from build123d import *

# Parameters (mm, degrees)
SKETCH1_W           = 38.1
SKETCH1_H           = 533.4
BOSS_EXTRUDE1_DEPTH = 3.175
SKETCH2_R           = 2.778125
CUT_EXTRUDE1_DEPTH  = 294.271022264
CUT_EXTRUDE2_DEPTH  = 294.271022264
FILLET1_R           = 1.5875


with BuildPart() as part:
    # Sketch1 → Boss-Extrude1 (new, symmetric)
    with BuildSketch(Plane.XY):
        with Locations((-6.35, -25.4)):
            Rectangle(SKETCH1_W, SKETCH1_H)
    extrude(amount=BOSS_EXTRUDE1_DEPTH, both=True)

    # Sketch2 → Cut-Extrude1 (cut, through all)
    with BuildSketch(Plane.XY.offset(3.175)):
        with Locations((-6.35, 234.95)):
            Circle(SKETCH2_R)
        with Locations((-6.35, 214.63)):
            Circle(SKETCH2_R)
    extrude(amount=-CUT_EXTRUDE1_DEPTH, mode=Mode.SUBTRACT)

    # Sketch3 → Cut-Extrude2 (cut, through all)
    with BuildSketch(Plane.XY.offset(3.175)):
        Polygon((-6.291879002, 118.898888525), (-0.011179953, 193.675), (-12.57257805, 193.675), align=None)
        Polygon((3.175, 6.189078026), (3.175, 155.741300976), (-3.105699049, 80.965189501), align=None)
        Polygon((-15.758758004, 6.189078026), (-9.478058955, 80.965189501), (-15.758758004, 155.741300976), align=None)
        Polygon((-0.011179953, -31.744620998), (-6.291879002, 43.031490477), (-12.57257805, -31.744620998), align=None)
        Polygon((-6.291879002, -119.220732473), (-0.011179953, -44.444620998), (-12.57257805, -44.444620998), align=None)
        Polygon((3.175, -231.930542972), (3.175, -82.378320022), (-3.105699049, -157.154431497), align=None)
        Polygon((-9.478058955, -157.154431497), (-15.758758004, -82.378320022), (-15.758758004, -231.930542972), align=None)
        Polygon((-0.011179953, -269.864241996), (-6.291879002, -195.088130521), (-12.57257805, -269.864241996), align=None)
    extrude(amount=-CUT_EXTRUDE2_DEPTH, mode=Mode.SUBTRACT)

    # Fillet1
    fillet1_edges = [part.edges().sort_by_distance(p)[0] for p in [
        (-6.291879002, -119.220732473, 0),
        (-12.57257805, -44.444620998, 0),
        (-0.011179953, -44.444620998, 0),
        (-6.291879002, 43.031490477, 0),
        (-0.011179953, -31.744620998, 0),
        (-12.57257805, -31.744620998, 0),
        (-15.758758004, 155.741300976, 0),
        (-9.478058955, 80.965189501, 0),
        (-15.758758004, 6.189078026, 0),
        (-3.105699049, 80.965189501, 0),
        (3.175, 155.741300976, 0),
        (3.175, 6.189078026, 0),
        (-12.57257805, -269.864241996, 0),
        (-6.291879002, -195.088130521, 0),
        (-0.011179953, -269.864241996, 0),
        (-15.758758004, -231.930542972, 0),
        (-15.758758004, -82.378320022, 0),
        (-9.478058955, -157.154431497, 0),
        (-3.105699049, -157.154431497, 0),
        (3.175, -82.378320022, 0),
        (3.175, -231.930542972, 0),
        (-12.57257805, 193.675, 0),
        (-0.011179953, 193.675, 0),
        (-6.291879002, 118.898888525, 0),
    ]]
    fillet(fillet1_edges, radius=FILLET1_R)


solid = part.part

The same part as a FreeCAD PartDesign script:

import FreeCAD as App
import Part
import Sketcher
from FreeCAD import Vector
Q = App.Units.Quantity


def edges_at(feature, points):
    """Names of the edges that pass closest to the given points."""
    edges = feature.Shape.Edges
    near = lambda p: min(range(len(edges)), key=lambda i: edges[i].distToShape(Part.Vertex(*p))[0])
    return sorted({f"Edge{near(p) + 1}" for p in points})

doc = App.newDocument("Part")
body = doc.addObject("PartDesign::Body", "Body")

# Sketch on XY plane
sketch1 = body.newObject("Sketcher::SketchObject", "Sketch")
sketch1.AttachmentSupport = (doc.getObject("XY_Plane"), [""])
sketch1.MapMode = "FlatFace"
sketch1.addGeometry(Part.LineSegment(Vector(-25, 241, 0), Vector(-25, -292, 0)), False)
sketch1.addGeometry(Part.LineSegment(Vector(-25, -292, 0), Vector(13, -292, 0)), False)
sketch1.addGeometry(Part.LineSegment(Vector(13, -292, 0), Vector(13, 241, 0)), False)
sketch1.addGeometry(Part.LineSegment(Vector(13, 241, 0), Vector(-25, 241, 0)), False)
sketch1.addConstraint(Sketcher.Constraint("Coincident", 0, 2, 1, 1))
sketch1.addConstraint(Sketcher.Constraint("Coincident", 1, 2, 2, 1))
sketch1.addConstraint(Sketcher.Constraint("Coincident", 2, 2, 3, 1))
sketch1.addConstraint(Sketcher.Constraint("Coincident", 3, 2, 0, 1))
sketch1.addConstraint(Sketcher.Constraint("Vertical", 0))
sketch1.addConstraint(Sketcher.Constraint("Horizontal", 1))
sketch1.addConstraint(Sketcher.Constraint("Vertical", 2))
sketch1.addConstraint(Sketcher.Constraint("Horizontal", 3))
sketch1.addConstraint(Sketcher.Constraint("DistanceY", 0, 2, 0, 1, Q("21 in")))
sketch1.addConstraint(Sketcher.Constraint("DistanceX", 1, 1, 1, 2, Q("1.5 in")))
sketch1.addConstraint(Sketcher.Constraint("DistanceX", 0, 2, -1, 1, Q("1 in")))
sketch1.addConstraint(Sketcher.Constraint("DistanceY", 0, 2, -1, 1, Q("11.5 in")))
pad1 = body.newObject("PartDesign::Pad", "Pad")
pad1.Profile = sketch1
pad1.Length = Q("0.25 in")
pad1.Midplane = True

# Sketch on XY plane
sketch2 = body.newObject("Sketcher::SketchObject", "Sketch001")
sketch2.AttachmentSupport = (doc.getObject("XY_Plane"), [""])
sketch2.MapMode = "FlatFace"
sketch2.AttachmentOffset = App.Placement(Vector(0, 0, 0.125 * 25.4), App.Rotation())
sketch2.addGeometry(Part.Circle(Vector(-6.3, 234.9, 0), Vector(0, 0, 1), 2.8), False)
sketch2.addGeometry(Part.Circle(Vector(-6.3, 214.6, 0), Vector(0, 0, 1), 2.8), False)
sketch2.addConstraint(Sketcher.Constraint("Equal", 0, 1))
sketch2.addConstraint(Sketcher.Constraint("Vertical", 0, 3, 1, 3))
sketch2.addConstraint(Sketcher.Constraint("Diameter", 0, Q("0.21875 in")))
sketch2.addConstraint(Sketcher.Constraint("DistanceY", 1, 3, 0, 3, Q("0.8 in")))
sketch2.addConstraint(Sketcher.Constraint("DistanceX", 0, 3, -1, 1, Q("0.25 in")))
sketch2.addConstraint(Sketcher.Constraint("DistanceY", -1, 1, 0, 3, Q("9.25 in")))
pocket1 = body.newObject("PartDesign::Pocket", "Pocket")
pocket1.Profile = sketch2
pocket1.Type = "ThroughAll"

# Sketch on XY plane
sketch3 = body.newObject("Sketcher::SketchObject", "Sketch002")
sketch3.AttachmentSupport = (doc.getObject("XY_Plane"), [""])
sketch3.MapMode = "FlatFace"
sketch3.AttachmentOffset = App.Placement(Vector(0, 0, 0.125 * 25.4), App.Rotation())
sketch3.addGeometry(Part.LineSegment(Vector(-6, 119, 0), Vector(0, 194, 0)), False)
sketch3.addGeometry(Part.LineSegment(Vector(0, 194, 0), Vector(-13, 194, 0)), False)
sketch3.addGeometry(Part.LineSegment(Vector(-13, 194, 0), Vector(-6, 119, 0)), False)
sketch3.addGeometry(Part.LineSegment(Vector(3, 6, 0), Vector(3, 156, 0)), False)
sketch3.addGeometry(Part.LineSegment(Vector(3, 156, 0), Vector(-3, 81, 0)), False)
sketch3.addGeometry(Part.LineSegment(Vector(-3, 81, 0), Vector(3, 6, 0)), False)
sketch3.addGeometry(Part.LineSegment(Vector(-16, 6, 0), Vector(-9, 81, 0)), False)
sketch3.addGeometry(Part.LineSegment(Vector(-9, 81, 0), Vector(-16, 156, 0)), False)
sketch3.addGeometry(Part.LineSegment(Vector(-16, 156, 0), Vector(-16, 6, 0)), False)
sketch3.addGeometry(Part.LineSegment(Vector(0, -32, 0), Vector(-6, 43, 0)), False)
sketch3.addGeometry(Part.LineSegment(Vector(-6, 43, 0), Vector(-13, -32, 0)), False)
sketch3.addGeometry(Part.LineSegment(Vector(-13, -32, 0), Vector(0, -32, 0)), False)
sketch3.addGeometry(Part.LineSegment(Vector(-6, -119, 0), Vector(0, -44, 0)), False)
sketch3.addGeometry(Part.LineSegment(Vector(0, -44, 0), Vector(-13, -44, 0)), False)
sketch3.addGeometry(Part.LineSegment(Vector(-13, -44, 0), Vector(-6, -119, 0)), False)
sketch3.addGeometry(Part.LineSegment(Vector(3, -232, 0), Vector(3, -82, 0)), False)
sketch3.addGeometry(Part.LineSegment(Vector(3, -82, 0), Vector(-3, -157, 0)), False)
sketch3.addGeometry(Part.LineSegment(Vector(-3, -157, 0), Vector(3, -232, 0)), False)
sketch3.addGeometry(Part.LineSegment(Vector(-9, -157, 0), Vector(-16, -82, 0)), False)
sketch3.addGeometry(Part.LineSegment(Vector(-16, -82, 0), Vector(-16, -232, 0)), False)
sketch3.addGeometry(Part.LineSegment(Vector(-16, -232, 0), Vector(-9, -157, 0)), False)
sketch3.addGeometry(Part.LineSegment(Vector(0, -270, 0), Vector(-6, -195, 0)), False)
sketch3.addGeometry(Part.LineSegment(Vector(-6, -195, 0), Vector(-13, -270, 0)), False)
sketch3.addGeometry(Part.LineSegment(Vector(-13, -270, 0), Vector(0, -270, 0)), False)
sketch3.addConstraint(Sketcher.Constraint("Coincident", 0, 2, 1, 1))
sketch3.addConstraint(Sketcher.Constraint("Coincident", 1, 2, 2, 1))
sketch3.addConstraint(Sketcher.Constraint("Coincident", 2, 2, 0, 1))
sketch3.addConstraint(Sketcher.Constraint("Coincident", 3, 2, 4, 1))
sketch3.addConstraint(Sketcher.Constraint("Coincident", 4, 2, 5, 1))
sketch3.addConstraint(Sketcher.Constraint("Coincident", 5, 2, 3, 1))
sketch3.addConstraint(Sketcher.Constraint("Coincident", 6, 2, 7, 1))
sketch3.addConstraint(Sketcher.Constraint("Coincident", 7, 2, 8, 1))
sketch3.addConstraint(Sketcher.Constraint("Coincident", 8, 2, 6, 1))
sketch3.addConstraint(Sketcher.Constraint("Coincident", 9, 2, 10, 1))
sketch3.addConstraint(Sketcher.Constraint("Coincident", 10, 2, 11, 1))
sketch3.addConstraint(Sketcher.Constraint("Coincident", 11, 2, 9, 1))
sketch3.addConstraint(Sketcher.Constraint("Coincident", 12, 2, 13, 1))
sketch3.addConstraint(Sketcher.Constraint("Coincident", 13, 2, 14, 1))
sketch3.addConstraint(Sketcher.Constraint("Coincident", 14, 2, 12, 1))
sketch3.addConstraint(Sketcher.Constraint("Coincident", 15, 2, 16, 1))
sketch3.addConstraint(Sketcher.Constraint("Coincident", 16, 2, 17, 1))
sketch3.addConstraint(Sketcher.Constraint("Coincident", 17, 2, 15, 1))
sketch3.addConstraint(Sketcher.Constraint("Coincident", 18, 2, 19, 1))
sketch3.addConstraint(Sketcher.Constraint("Coincident", 19, 2, 20, 1))
sketch3.addConstraint(Sketcher.Constraint("Coincident", 20, 2, 18, 1))
sketch3.addConstraint(Sketcher.Constraint("Coincident", 21, 2, 22, 1))
sketch3.addConstraint(Sketcher.Constraint("Coincident", 22, 2, 23, 1))
sketch3.addConstraint(Sketcher.Constraint("Coincident", 23, 2, 21, 1))
sketch3.addConstraint(Sketcher.Constraint("Horizontal", 1))
sketch3.addConstraint(Sketcher.Constraint("Vertical", 3))
sketch3.addConstraint(Sketcher.Constraint("Vertical", 8))
sketch3.addConstraint(Sketcher.Constraint("Horizontal", 11))
sketch3.addConstraint(Sketcher.Constraint("Horizontal", 13))
sketch3.addConstraint(Sketcher.Constraint("Vertical", 15))
sketch3.addConstraint(Sketcher.Constraint("Vertical", 19))
sketch3.addConstraint(Sketcher.Constraint("Horizontal", 23))
sketch3.addConstraint(Sketcher.Constraint("Parallel", 0, 4))
sketch3.addConstraint(Sketcher.Constraint("Parallel", 2, 5))
sketch3.addConstraint(Sketcher.Constraint("Parallel", 4, 6))
sketch3.addConstraint(Sketcher.Constraint("Parallel", 5, 7))
sketch3.addConstraint(Sketcher.Constraint("Parallel", 7, 9))
sketch3.addConstraint(Sketcher.Constraint("Parallel", 6, 10))
sketch3.addConstraint(Sketcher.Constraint("Parallel", 10, 12))
sketch3.addConstraint(Sketcher.Constraint("Parallel", 9, 14))
sketch3.addConstraint(Sketcher.Constraint("Parallel", 12, 16))
sketch3.addConstraint(Sketcher.Constraint("Parallel", 14, 17))
sketch3.addConstraint(Sketcher.Constraint("Parallel", 17, 18))
sketch3.addConstraint(Sketcher.Constraint("Parallel", 16, 20))
sketch3.addConstraint(Sketcher.Constraint("Parallel", 18, 21))
sketch3.addConstraint(Sketcher.Constraint("Parallel", 20, 22))
sketch3.addConstraint(Sketcher.Constraint("Horizontal", 4, 2, 6, 2))
sketch3.addConstraint(Sketcher.Constraint("Horizontal", 3, 2, 7, 2))
sketch3.addConstraint(Sketcher.Constraint("Horizontal", 5, 2, 8, 2))
sketch3.addConstraint(Sketcher.Constraint("Horizontal", 15, 2, 18, 2))
sketch3.addConstraint(Sketcher.Constraint("Horizontal", 17, 2, 19, 2))
sketch3.addConstraint(Sketcher.Constraint("Vertical", 2, 2, 9, 2))
sketch3.addConstraint(Sketcher.Constraint("Vertical", 1, 2, 10, 2))
sketch3.addConstraint(Sketcher.Constraint("Vertical", 11, 2, 12, 2))
sketch3.addConstraint(Sketcher.Constraint("Vertical", 10, 2, 13, 2))
sketch3.addConstraint(Sketcher.Constraint("Vertical", 5, 2, 15, 2))
sketch3.addConstraint(Sketcher.Constraint("Vertical", 4, 2, 16, 2))
sketch3.addConstraint(Sketcher.Constraint("Vertical", 8, 2, 18, 2))
sketch3.addConstraint(Sketcher.Constraint("Vertical", 14, 2, 21, 2))
sketch3.addConstraint(Sketcher.Constraint("Vertical", 13, 2, 22, 2))
sketch3.addConstraint(Sketcher.Constraint("Equal", 2, 4))
sketch3.addConstraint(Sketcher.Constraint("DistanceY", 12, 2, 11, 2, Q("0.5 in")))
sketch3.addConstraint(Sketcher.Constraint("DistanceY", -1, 1, 0, 2, Q("7.625 in")))
sketch3.addConstraint(Sketcher.Constraint("DistanceX", -1, 1, 3, 2, Q("0.125 in")))
sketch3.addConstraint(Sketcher.Constraint("DistanceX", 1, 2, 1, 1, Q("12.561398 mm")))
sketch3.addConstraint(Sketcher.Constraint("DistanceY", -1, 1, 3, 2, Q("155.741301 mm")))
sketch3.addConstraint(Sketcher.Constraint("DistanceY", 9, 2, 4, 2, Q("37.933699 mm")))
sketch3.addConstraint(Sketcher.Constraint("DistanceY", 15, 2, 12, 2, Q("37.933699 mm")))
sketch3.addConstraint(Sketcher.Constraint("DistanceY", 21, 2, 16, 2, Q("37.933699 mm")))
sketch3.addConstraint(Sketcher.Constraint("DistanceY", 3, 1, 3, 2, Q("149.552223 mm")))
sketch3.addConstraint(Sketcher.Constraint("DistanceX", 0, 2, -1, 1, Q("0.01118 mm")))
sketch3.addConstraint(Sketcher.Constraint("DistanceX", 6, 2, -1, 1, Q("9.478059 mm")))
pocket2 = body.newObject("PartDesign::Pocket", "Pocket001")
pocket2.Profile = sketch3
pocket2.Type = "ThroughAll"
doc.recompute()

fillet = body.newObject("PartDesign::Fillet", "Fillet")
fillet.Base = (pocket2, edges_at(pocket2, [
    (-6.292, -119.221, 0),
    (-12.573, -44.445, 0),
    (-0.011, -44.445, 0),
    (-6.292, 43.031, 0),
    (-0.011, -31.745, 0),
    (-12.573, -31.745, 0),
    (-15.759, 155.741, 0),
    (-9.478, 80.965, 0),
    (-15.759, 6.189, 0),
    (-3.106, 80.965, 0),
    (3.175, 155.741, 0),
    (3.175, 6.189, 0),
    (-12.573, -269.864, 0),
    (-6.292, -195.088, 0),
    (-0.011, -269.864, 0),
    (-15.759, -231.931, 0),
    (-15.759, -82.378, 0),
    (-9.478, -157.154, 0),
    (-3.106, -157.154, 0),
    (3.175, -82.378, 0),
    (3.175, -231.931, 0),
    (-12.573, 193.675, 0),
    (-0.011, 193.675, 0),
    (-6.292, 118.899, 0),
]))
fillet.Radius = Q("0.0625 in")

doc.recompute()
